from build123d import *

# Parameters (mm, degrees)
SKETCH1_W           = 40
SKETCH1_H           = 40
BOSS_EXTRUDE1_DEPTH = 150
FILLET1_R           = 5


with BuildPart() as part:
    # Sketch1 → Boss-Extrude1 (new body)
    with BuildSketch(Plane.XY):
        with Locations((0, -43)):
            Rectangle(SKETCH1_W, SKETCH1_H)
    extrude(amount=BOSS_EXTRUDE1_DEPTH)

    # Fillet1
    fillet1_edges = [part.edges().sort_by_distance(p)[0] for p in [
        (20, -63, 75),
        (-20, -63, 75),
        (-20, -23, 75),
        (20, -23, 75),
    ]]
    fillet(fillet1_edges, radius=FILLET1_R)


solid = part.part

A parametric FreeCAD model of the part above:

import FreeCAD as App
import Part
import Sketcher

V = App.Vector


def edges_at(feature, points):
    """Names of the edges that pass closest to the given points."""
    edges = feature.Shape.Edges
    near = lambda p: min(range(len(edges)), key=lambda i: edges[i].distToShape(Part.Vertex(*p))[0])
    return sorted({f"Edge{near(p) + 1}" for p in points})

doc = App.newDocument("Part")
body = doc.addObject("PartDesign::Body", "Body")

# Sketch on XY plane
sketch1 = doc.addObject("Sketcher::SketchObject", "Sketch")
body.addObject(sketch1)
sketch1.AttachmentSupport = (doc.XY_Plane, [""])
sketch1.MapMode = "FlatFace"
sketch1.addGeometry([
    Part.LineSegment(V(-20, -23, 0), V(-20, -63, 0)),
    Part.LineSegment(V(-20, -63, 0), V(20, -63, 0)),
    Part.LineSegment(V(20, -63, 0), V(20, -23, 0)),
    Part.LineSegment(V(20, -23, 0), V(-20, -23, 0)),
], False)
sketch1.addConstraint([
    Sketcher.Constraint("Coincident", 0, 2, 1, 1),
    Sketcher.Constraint("Coincident", 1, 2, 2, 1),
    Sketcher.Constraint("Coincident", 2, 2, 3, 1),
    Sketcher.Constraint("Coincident", 3, 2, 0, 1),
    Sketcher.Constraint("Vertical", 0),
    Sketcher.Constraint("Horizontal", 1),
    Sketcher.Constraint("Vertical", 2),
    Sketcher.Constraint("Horizontal", 3),
    Sketcher.Constraint("Equal", 3, 0),
    Sketcher.Constraint("DistanceX", 1, 1, 1, 2, 40.0),
    Sketcher.Constraint("DistanceX", 0, 2, -1, 1, 20.0),
    Sketcher.Constraint("DistanceY", 0, 2, -1, 1, 63.0),
])
pad1 = doc.addObject("PartDesign::Pad", "Pad")
body.addObject(pad1)
pad1.Profile = sketch1
pad1.Length = 150
doc.recompute()

fillet = doc.addObject("PartDesign::Fillet", "Fillet")
body.addObject(fillet)
fillet.Base = (pad1, edges_at(pad1, [
    (20, -63, 75),
    (-20, -63, 75),
    (-20, -23, 75),
    (20, -23, 75),
]))
fillet.Radius = 5

doc.recompute()
